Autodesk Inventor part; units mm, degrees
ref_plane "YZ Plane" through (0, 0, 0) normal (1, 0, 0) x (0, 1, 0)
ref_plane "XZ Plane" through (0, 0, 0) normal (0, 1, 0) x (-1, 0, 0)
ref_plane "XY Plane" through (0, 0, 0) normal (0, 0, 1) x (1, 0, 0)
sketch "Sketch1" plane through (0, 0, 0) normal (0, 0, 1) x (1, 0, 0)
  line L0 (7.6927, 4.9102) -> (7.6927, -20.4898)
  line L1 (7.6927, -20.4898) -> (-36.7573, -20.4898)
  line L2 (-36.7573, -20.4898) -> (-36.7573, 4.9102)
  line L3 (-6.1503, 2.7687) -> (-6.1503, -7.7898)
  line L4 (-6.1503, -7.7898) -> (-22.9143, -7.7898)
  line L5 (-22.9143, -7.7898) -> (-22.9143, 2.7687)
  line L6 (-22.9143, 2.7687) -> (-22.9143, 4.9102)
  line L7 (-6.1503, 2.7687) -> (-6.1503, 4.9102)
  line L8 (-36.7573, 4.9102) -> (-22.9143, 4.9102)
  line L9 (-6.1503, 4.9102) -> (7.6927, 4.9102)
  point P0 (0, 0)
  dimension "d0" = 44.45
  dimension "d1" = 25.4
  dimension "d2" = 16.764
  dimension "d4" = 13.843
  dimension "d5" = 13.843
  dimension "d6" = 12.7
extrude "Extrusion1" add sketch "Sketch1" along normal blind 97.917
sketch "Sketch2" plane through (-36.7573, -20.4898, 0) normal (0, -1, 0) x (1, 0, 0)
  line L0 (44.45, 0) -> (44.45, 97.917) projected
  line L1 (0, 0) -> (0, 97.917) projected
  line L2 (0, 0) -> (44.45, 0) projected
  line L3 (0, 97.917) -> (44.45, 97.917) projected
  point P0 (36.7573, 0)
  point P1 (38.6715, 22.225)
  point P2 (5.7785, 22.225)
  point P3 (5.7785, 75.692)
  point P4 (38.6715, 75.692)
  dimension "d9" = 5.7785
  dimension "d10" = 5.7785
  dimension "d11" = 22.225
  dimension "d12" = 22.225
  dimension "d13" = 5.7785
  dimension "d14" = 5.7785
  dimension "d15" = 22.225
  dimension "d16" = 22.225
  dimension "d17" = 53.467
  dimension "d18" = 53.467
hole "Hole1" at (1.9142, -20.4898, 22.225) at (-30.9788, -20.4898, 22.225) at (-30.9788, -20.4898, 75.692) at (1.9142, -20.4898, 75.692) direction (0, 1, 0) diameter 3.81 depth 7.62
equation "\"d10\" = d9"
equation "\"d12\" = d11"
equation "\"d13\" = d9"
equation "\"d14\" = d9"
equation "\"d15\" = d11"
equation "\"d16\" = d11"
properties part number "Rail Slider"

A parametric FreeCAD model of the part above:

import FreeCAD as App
import Part
import Sketcher

V = App.Vector
Q = App.Units.Quantity

doc = App.newDocument("Part")
params = doc.addObject("Spreadsheet::Sheet", "Params")
for row, (alias, value) in enumerate([
    ("sketch1_height", "1 in"),
    ("sketch1_height2", "0.5 in"),
    ("sketch1_width", "0.66 in"),
    ("sketch1_width2", "1.75 in"),
    ("pad1_length", "3.855 in"),
    ("sketch2_diameter", "0.15 in"),
    ("hole_diameter", "0.15 in"),
    ("hole_depth", "0.3 in"),
], start=1):
    params.set(f"A{row}", alias)
    params.set(f"B{row}", "=" + value)
    params.setAlias(f"B{row}", alias)

body = doc.addObject("PartDesign::Body", "Body")

# Sketch on XY plane
sketch1 = doc.addObject("Sketcher::SketchObject", "Sketch")
body.addObject(sketch1)
sketch1.AttachmentSupport = (doc.XY_Plane, [""])
sketch1.MapMode = "FlatFace"
sketch1.addGeometry(Part.LineSegment(V(7.6927, -20.4898, 0), V(7.6927, 4.9102, 0)), False)
sketch1.addGeometry(Part.LineSegment(V(7.6927, 4.9102, 0), V(-6.1503, 4.9102, 0)), False)
sketch1.addGeometry(Part.LineSegment(V(-6.1503, 4.9102, 0), V(-6.1503, -7.7898, 0)), False)
sketch1.addGeometry(Part.LineSegment(V(-6.1503, -7.7898, 0), V(-22.9143, -7.7898, 0)), False)
sketch1.addGeometry(Part.LineSegment(V(-22.9143, -7.7898, 0), V(-22.9143, 4.9102, 0)), False)
sketch1.addGeometry(Part.LineSegment(V(-22.9143, 4.9102, 0), V(-36.7573, 4.9102, 0)), False)
sketch1.addGeometry(Part.LineSegment(V(-36.7573, 4.9102, 0), V(-36.7573, -20.4898, 0)), False)
sketch1.addGeometry(Part.LineSegment(V(-36.7573, -20.4898, 0), V(7.6927, -20.4898, 0)), False)
sketch1.addConstraint(Sketcher.Constraint("Coincident", 0, 2, 1, 1))
sketch1.addConstraint(Sketcher.Constraint("Coincident", 1, 2, 2, 1))
sketch1.addConstraint(Sketcher.Constraint("Coincident", 2, 2, 3, 1))
sketch1.addConstraint(Sketcher.Constraint("Coincident", 3, 2, 4, 1))
sketch1.addConstraint(Sketcher.Constraint("Coincident", 4, 2, 5, 1))
sketch1.addConstraint(Sketcher.Constraint("Coincident", 5, 2, 6, 1))
sketch1.addConstraint(Sketcher.Constraint("Coincident", 6, 2, 7, 1))
sketch1.addConstraint(Sketcher.Constraint("Coincident", 7, 2, 0, 1))
sketch1.addConstraint(Sketcher.Constraint("Vertical", 0))
sketch1.addConstraint(Sketcher.Constraint("Horizontal", 1))
sketch1.addConstraint(Sketcher.Constraint("Vertical", 2))
sketch1.addConstraint(Sketcher.Constraint("Horizontal", 3))
sketch1.addConstraint(Sketcher.Constraint("Vertical", 4))
sketch1.addConstraint(Sketcher.Constraint("Horizontal", 5))
sketch1.addConstraint(Sketcher.Constraint("Vertical", 6))
sketch1.addConstraint(Sketcher.Constraint("Horizontal", 7))
sketch1.addConstraint(Sketcher.Constraint("Horizontal", 1, 2, 4, 2))
sketch1.addConstraint(Sketcher.Constraint("Equal", 1, 5))
sketch1.addConstraint(Sketcher.Constraint("DistanceY", 0, 1, 0, 2, Q("1 in")))
sketch1.addConstraint(Sketcher.Constraint("DistanceY", 2, 2, 2, 1, Q("0.5 in")))
sketch1.addConstraint(Sketcher.Constraint("DistanceX", 3, 2, 3, 1, Q("0.66 in")))
sketch1.addConstraint(Sketcher.Constraint("DistanceX", 7, 1, 7, 2, Q("1.75 in")))
sketch1.addConstraint(Sketcher.Constraint("DistanceX", -1, 1, 0, 2, 7.6927))
sketch1.addConstraint(Sketcher.Constraint("DistanceY", -1, 1, 0, 2, 4.9102))
sketch1.setExpression("Constraints[18]", "Params.sketch1_height")
sketch1.setExpression("Constraints[19]", "Params.sketch1_height2")
sketch1.setExpression("Constraints[20]", "Params.sketch1_width")
sketch1.setExpression("Constraints[21]", "Params.sketch1_width2")
pad1 = doc.addObject("PartDesign::Pad", "Pad")
body.addObject(pad1)
pad1.Profile = sketch1
pad1.setExpression("Length", "Params.pad1_length")

# Sketch on XZ plane
sketch2 = doc.addObject("Sketcher::SketchObject", "Sketch001")
body.addObject(sketch2)
sketch2.AttachmentSupport = (doc.XZ_Plane, [""])
sketch2.MapMode = "FlatFace"
sketch2.AttachmentOffset = App.Placement(V(0, 0, 20.4898), App.Rotation())
sketch2.addGeometry(Part.Circle(V(1.9142, 22.225, 0), V(0, 0, 1), 1.905), False)
sketch2.addGeometry(Part.Circle(V(-30.9788, 22.225, 0), V(0, 0, 1), 1.905), False)
sketch2.addGeometry(Part.Circle(V(-30.9788, 75.692, 0), V(0, 0, 1), 1.905), False)
sketch2.addGeometry(Part.Circle(V(1.9142, 75.692, 0), V(0, 0, 1), 1.905), False)
sketch2.addConstraint(Sketcher.Constraint("Equal", 0, 1))
sketch2.addConstraint(Sketcher.Constraint("Equal", 1, 2))
sketch2.addConstraint(Sketcher.Constraint("Equal", 2, 3))
sketch2.addConstraint(Sketcher.Constraint("Horizontal", 0, 3, 1, 3))
sketch2.addConstraint(Sketcher.Constraint("Horizontal", 2, 3, 3, 3))
sketch2.addConstraint(Sketcher.Constraint("Vertical", 1, 3, 2, 3))
sketch2.addConstraint(Sketcher.Constraint("Vertical", 0, 3, 3, 3))
sketch2.addConstraint(Sketcher.Constraint("Diameter", 0, Q("0.15 in")))
sketch2.addConstraint(Sketcher.Constraint("DistanceY", -1, 1, 2, 3, Q("2.98 in")))
sketch2.addConstraint(Sketcher.Constraint("DistanceY", -1, 1, 0, 3, Q("0.875 in")))
sketch2.addConstraint(Sketcher.Constraint("DistanceX", 1, 3, 0, 3, Q("1.295 in")))
sketch2.addConstraint(Sketcher.Constraint("DistanceX", -1, 1, 0, 3, 1.9142))
sketch2.setExpression("Constraints[7]", "Params.sketch2_diameter")
doc.recompute()
hole = doc.addObject("PartDesign::Hole", "Hole")
body.addObject(hole)
hole.Profile = sketch2
hole.ThreadType = "None"
hole.setExpression("Diameter", "Params.hole_diameter")
hole.DepthType = "Dimension"
hole.setExpression("Depth", "Params.hole_depth")
hole.DrillPoint = "Flat"

doc.recompute()
